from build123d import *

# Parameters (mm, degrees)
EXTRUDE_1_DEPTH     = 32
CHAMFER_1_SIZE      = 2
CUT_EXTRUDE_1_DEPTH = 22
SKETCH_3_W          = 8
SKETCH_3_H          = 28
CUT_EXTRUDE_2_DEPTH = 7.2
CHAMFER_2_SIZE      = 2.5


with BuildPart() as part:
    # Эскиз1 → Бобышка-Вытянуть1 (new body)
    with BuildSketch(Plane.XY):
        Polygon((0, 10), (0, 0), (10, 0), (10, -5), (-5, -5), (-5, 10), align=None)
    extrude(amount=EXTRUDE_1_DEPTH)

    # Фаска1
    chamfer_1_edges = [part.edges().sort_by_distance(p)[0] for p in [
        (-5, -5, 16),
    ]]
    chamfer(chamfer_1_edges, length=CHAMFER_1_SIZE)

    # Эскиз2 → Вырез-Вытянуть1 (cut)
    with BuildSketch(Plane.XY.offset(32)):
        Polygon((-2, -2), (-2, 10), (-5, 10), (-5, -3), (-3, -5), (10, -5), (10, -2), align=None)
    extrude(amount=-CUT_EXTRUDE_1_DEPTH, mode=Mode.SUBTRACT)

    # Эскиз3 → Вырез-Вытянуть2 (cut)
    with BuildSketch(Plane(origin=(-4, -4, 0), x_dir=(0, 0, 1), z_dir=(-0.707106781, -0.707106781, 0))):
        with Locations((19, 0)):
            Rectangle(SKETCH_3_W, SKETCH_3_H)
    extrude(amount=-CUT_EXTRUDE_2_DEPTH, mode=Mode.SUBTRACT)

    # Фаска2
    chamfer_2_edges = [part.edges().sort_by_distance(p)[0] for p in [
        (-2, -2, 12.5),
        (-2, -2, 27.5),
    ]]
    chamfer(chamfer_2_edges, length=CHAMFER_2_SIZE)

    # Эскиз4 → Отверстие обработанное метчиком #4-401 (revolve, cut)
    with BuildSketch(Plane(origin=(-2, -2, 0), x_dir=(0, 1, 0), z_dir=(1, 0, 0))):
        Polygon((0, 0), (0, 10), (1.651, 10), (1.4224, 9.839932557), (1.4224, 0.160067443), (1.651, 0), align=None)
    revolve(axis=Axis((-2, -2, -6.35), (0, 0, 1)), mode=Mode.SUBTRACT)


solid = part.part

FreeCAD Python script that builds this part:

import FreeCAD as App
import Part
import Sketcher
from FreeCAD import Vector
Q = App.Units.Quantity


def edges_at(feature, points):
    """Names of the edges that pass closest to the given points."""
    edges = feature.Shape.Edges
    near = lambda p: min(range(len(edges)), key=lambda i: edges[i].distToShape(Part.Vertex(*p))[0])
    return sorted({f"Edge{near(p) + 1}" for p in points})


def add_polygon(sketch, points):
    """Adds a closed chain of lines whose ends are joined by coincident constraints."""
    first, n = sketch.GeometryCount, len(points)
    for a, b in zip(points, points[1:] + points[:1]):
        sketch.addGeometry(Part.LineSegment(App.Vector(*a, 0), App.Vector(*b, 0)), False)
    for i in range(n):
        sketch.addConstraint(Sketcher.Constraint("Coincident", first + i, 2, first + (i + 1) % n, 1))

doc = App.newDocument("Part")
body = doc.addObject("PartDesign::Body", "Body")

# Sketch on XY plane
sketch1 = body.newObject("Sketcher::SketchObject", "Sketch")
sketch1.AttachmentSupport = (doc.getObject("XY_Plane"), [""])
sketch1.MapMode = "FlatFace"
add_polygon(sketch1, [(0, 0), (0, 10), (-5, 10), (-5, -5), (10, -5), (10, 0)])  # lines 0-5
sketch1.addConstraint([
    Sketcher.Constraint("Vertical", 0),
    Sketcher.Constraint("Horizontal", 1),
    Sketcher.Constraint("Vertical", 2),
    Sketcher.Constraint("Horizontal", 3),
    Sketcher.Constraint("Vertical", 4),
    Sketcher.Constraint("Horizontal", 5),
    Sketcher.Constraint("Coincident", 5, 2, -1, 1),
    Sketcher.Constraint("Equal", 5, 0),
    Sketcher.Constraint("Equal", 3, 2),
    Sketcher.Constraint("DistanceX", 1, 2, 1, 1, 5.0),
    Sketcher.Constraint("DistanceX", 3, 1, 3, 2, 15.0),
])
pad1 = body.newObject("PartDesign::Pad", "Pad")
pad1.Profile = sketch1
pad1.Length = 32
doc.recompute()

chamfer = body.newObject("PartDesign::Chamfer", "Chamfer")
chamfer.Base = (pad1, edges_at(pad1, [(-5, -5, 16)]))
chamfer.Size = 2

# Sketch on XY plane
sketch2 = body.newObject("Sketcher::SketchObject", "Sketch001")
sketch2.AttachmentSupport = (doc.getObject("XY_Plane"), [""])
sketch2.MapMode = "FlatFace"
sketch2.AttachmentOffset = App.Placement(Vector(0, 0, 32), App.Rotation())
add_polygon(sketch2, [(-2, -2), (-2, 10), (-5, 10), (-5, -3), (-3, -5), (10, -5), (10, -2)])  # lines 0-6
sketch2.addConstraint([
    Sketcher.Constraint("Vertical", 0),
    Sketcher.Constraint("Horizontal", 1),
    Sketcher.Constraint("Vertical", 2),
    Sketcher.Constraint("Horizontal", 4),
    Sketcher.Constraint("Vertical", 5),
    Sketcher.Constraint("Horizontal", 6),
    Sketcher.Constraint("Equal", 6, 0),
    Sketcher.Constraint("Equal", 4, 2),
    Sketcher.Constraint("Equal", 1, 5),
    Sketcher.Constraint("DistanceX", 1, 2, 1, 1, 3.0),
    Sketcher.Constraint("DistanceX", 4, 1, 4, 2, 13.0),
    Sketcher.Constraint("DistanceX", 6, 2, 6, 1, 12.0),
    Sketcher.Constraint("DistanceX", 0, 2, -1, 1, 2.0),
    Sketcher.Constraint("DistanceY", -1, 1, 0, 2, 10.0),
])
pocket1 = body.newObject("PartDesign::Pocket", "Pocket")
pocket1.Profile = sketch2
pocket1.Length = 22

# Sketch on an angled plane
sketch3 = body.newObject("Sketcher::SketchObject", "Sketch002")
sketch3.Placement = App.Placement(Vector(-4, -4, 0), App.Rotation(Vector(0, 0, 1), Vector(-0.707106781, 0.707106781, 0), Vector(-0.707106781, -0.707106781, 0), "ZXY"))
add_polygon(sketch3, [(15, 14), (15, -14), (23, -14), (23, 14)])  # lines 0-3
sketch3.addConstraint([
    Sketcher.Constraint("Vertical", 0),
    Sketcher.Constraint("Horizontal", 1),
    Sketcher.Constraint("Vertical", 2),
    Sketcher.Constraint("Horizontal", 3),
    Sketcher.Constraint("DistanceX", 1, 1, 1, 2, 8.0),
    Sketcher.Constraint("DistanceY", 0, 2, 0, 1, 28.0),
    Sketcher.Constraint("DistanceX", -1, 1, 0, 2, 15.0),
    Sketcher.Constraint("DistanceY", 0, 2, -1, 1, 14.0),
])
pocket2 = body.newObject("PartDesign::Pocket", "Pocket001")
pocket2.Profile = sketch3
pocket2.Length = 7.2
doc.recompute()

chamfer2 = body.newObject("PartDesign::Chamfer", "Chamfer001")
chamfer2.Base = (pocket2, edges_at(pocket2, [(-2, -2, 12.5), (-2, -2, 27.5)]))
chamfer2.Size = 2.5

# Sketch on YZ plane
sketch4 = body.newObject("Sketcher::SketchObject", "Sketch003")
sketch4.AttachmentSupport = (doc.getObject("YZ_Plane"), [""])
sketch4.MapMode = "FlatFace"
sketch4.AttachmentOffset = App.Placement(Vector(0, 0, -2), App.Rotation())
add_polygon(sketch4, [(-2, 10), (-2, 0), (-0.35, 0), (-0.58, 0.16), (-0.58, 9.84), (-0.35, 10)])  # lines 0-5
sketch4.addGeometry(Part.LineSegment(Vector(-2, 0, 0), Vector(-2, 10, 0)), True)  # axis
sketch4.addConstraint([
    Sketcher.Constraint("Vertical", 0),
    Sketcher.Constraint("Horizontal", 1),
    Sketcher.Constraint("Vertical", 3),
    Sketcher.Constraint("Horizontal", 5),
    Sketcher.Constraint("Vertical", 6),
    Sketcher.Constraint("Coincident", 6, 1, 0, 2),
    Sketcher.Constraint("PointOnObject", 0, 2, -1),
    Sketcher.Constraint("Horizontal", 4, 2, 6, 2),
    Sketcher.Constraint("Vertical", 1, 2, 4, 2),
    Sketcher.Constraint("Equal", 2, 4),
    Sketcher.Constraint("DistanceY", 0, 2, 0, 1, 10.0),
    Sketcher.Constraint("Angle", 2, Q("145 deg")),
    Sketcher.Constraint("DistanceX", 0, 2, -1, 1, 2.0),
    Sketcher.Constraint("DistanceX", 1, 1, 1, 2, 1.651),
    Sketcher.Constraint("DistanceX", 2, 2, -1, 1, 0.5776),
])
groove = body.newObject("PartDesign::Groove", "Groove")
groove.Profile = sketch4
groove.ReferenceAxis = (sketch4, ["Axis0"])
groove.Angle = 360

doc.recompute()
